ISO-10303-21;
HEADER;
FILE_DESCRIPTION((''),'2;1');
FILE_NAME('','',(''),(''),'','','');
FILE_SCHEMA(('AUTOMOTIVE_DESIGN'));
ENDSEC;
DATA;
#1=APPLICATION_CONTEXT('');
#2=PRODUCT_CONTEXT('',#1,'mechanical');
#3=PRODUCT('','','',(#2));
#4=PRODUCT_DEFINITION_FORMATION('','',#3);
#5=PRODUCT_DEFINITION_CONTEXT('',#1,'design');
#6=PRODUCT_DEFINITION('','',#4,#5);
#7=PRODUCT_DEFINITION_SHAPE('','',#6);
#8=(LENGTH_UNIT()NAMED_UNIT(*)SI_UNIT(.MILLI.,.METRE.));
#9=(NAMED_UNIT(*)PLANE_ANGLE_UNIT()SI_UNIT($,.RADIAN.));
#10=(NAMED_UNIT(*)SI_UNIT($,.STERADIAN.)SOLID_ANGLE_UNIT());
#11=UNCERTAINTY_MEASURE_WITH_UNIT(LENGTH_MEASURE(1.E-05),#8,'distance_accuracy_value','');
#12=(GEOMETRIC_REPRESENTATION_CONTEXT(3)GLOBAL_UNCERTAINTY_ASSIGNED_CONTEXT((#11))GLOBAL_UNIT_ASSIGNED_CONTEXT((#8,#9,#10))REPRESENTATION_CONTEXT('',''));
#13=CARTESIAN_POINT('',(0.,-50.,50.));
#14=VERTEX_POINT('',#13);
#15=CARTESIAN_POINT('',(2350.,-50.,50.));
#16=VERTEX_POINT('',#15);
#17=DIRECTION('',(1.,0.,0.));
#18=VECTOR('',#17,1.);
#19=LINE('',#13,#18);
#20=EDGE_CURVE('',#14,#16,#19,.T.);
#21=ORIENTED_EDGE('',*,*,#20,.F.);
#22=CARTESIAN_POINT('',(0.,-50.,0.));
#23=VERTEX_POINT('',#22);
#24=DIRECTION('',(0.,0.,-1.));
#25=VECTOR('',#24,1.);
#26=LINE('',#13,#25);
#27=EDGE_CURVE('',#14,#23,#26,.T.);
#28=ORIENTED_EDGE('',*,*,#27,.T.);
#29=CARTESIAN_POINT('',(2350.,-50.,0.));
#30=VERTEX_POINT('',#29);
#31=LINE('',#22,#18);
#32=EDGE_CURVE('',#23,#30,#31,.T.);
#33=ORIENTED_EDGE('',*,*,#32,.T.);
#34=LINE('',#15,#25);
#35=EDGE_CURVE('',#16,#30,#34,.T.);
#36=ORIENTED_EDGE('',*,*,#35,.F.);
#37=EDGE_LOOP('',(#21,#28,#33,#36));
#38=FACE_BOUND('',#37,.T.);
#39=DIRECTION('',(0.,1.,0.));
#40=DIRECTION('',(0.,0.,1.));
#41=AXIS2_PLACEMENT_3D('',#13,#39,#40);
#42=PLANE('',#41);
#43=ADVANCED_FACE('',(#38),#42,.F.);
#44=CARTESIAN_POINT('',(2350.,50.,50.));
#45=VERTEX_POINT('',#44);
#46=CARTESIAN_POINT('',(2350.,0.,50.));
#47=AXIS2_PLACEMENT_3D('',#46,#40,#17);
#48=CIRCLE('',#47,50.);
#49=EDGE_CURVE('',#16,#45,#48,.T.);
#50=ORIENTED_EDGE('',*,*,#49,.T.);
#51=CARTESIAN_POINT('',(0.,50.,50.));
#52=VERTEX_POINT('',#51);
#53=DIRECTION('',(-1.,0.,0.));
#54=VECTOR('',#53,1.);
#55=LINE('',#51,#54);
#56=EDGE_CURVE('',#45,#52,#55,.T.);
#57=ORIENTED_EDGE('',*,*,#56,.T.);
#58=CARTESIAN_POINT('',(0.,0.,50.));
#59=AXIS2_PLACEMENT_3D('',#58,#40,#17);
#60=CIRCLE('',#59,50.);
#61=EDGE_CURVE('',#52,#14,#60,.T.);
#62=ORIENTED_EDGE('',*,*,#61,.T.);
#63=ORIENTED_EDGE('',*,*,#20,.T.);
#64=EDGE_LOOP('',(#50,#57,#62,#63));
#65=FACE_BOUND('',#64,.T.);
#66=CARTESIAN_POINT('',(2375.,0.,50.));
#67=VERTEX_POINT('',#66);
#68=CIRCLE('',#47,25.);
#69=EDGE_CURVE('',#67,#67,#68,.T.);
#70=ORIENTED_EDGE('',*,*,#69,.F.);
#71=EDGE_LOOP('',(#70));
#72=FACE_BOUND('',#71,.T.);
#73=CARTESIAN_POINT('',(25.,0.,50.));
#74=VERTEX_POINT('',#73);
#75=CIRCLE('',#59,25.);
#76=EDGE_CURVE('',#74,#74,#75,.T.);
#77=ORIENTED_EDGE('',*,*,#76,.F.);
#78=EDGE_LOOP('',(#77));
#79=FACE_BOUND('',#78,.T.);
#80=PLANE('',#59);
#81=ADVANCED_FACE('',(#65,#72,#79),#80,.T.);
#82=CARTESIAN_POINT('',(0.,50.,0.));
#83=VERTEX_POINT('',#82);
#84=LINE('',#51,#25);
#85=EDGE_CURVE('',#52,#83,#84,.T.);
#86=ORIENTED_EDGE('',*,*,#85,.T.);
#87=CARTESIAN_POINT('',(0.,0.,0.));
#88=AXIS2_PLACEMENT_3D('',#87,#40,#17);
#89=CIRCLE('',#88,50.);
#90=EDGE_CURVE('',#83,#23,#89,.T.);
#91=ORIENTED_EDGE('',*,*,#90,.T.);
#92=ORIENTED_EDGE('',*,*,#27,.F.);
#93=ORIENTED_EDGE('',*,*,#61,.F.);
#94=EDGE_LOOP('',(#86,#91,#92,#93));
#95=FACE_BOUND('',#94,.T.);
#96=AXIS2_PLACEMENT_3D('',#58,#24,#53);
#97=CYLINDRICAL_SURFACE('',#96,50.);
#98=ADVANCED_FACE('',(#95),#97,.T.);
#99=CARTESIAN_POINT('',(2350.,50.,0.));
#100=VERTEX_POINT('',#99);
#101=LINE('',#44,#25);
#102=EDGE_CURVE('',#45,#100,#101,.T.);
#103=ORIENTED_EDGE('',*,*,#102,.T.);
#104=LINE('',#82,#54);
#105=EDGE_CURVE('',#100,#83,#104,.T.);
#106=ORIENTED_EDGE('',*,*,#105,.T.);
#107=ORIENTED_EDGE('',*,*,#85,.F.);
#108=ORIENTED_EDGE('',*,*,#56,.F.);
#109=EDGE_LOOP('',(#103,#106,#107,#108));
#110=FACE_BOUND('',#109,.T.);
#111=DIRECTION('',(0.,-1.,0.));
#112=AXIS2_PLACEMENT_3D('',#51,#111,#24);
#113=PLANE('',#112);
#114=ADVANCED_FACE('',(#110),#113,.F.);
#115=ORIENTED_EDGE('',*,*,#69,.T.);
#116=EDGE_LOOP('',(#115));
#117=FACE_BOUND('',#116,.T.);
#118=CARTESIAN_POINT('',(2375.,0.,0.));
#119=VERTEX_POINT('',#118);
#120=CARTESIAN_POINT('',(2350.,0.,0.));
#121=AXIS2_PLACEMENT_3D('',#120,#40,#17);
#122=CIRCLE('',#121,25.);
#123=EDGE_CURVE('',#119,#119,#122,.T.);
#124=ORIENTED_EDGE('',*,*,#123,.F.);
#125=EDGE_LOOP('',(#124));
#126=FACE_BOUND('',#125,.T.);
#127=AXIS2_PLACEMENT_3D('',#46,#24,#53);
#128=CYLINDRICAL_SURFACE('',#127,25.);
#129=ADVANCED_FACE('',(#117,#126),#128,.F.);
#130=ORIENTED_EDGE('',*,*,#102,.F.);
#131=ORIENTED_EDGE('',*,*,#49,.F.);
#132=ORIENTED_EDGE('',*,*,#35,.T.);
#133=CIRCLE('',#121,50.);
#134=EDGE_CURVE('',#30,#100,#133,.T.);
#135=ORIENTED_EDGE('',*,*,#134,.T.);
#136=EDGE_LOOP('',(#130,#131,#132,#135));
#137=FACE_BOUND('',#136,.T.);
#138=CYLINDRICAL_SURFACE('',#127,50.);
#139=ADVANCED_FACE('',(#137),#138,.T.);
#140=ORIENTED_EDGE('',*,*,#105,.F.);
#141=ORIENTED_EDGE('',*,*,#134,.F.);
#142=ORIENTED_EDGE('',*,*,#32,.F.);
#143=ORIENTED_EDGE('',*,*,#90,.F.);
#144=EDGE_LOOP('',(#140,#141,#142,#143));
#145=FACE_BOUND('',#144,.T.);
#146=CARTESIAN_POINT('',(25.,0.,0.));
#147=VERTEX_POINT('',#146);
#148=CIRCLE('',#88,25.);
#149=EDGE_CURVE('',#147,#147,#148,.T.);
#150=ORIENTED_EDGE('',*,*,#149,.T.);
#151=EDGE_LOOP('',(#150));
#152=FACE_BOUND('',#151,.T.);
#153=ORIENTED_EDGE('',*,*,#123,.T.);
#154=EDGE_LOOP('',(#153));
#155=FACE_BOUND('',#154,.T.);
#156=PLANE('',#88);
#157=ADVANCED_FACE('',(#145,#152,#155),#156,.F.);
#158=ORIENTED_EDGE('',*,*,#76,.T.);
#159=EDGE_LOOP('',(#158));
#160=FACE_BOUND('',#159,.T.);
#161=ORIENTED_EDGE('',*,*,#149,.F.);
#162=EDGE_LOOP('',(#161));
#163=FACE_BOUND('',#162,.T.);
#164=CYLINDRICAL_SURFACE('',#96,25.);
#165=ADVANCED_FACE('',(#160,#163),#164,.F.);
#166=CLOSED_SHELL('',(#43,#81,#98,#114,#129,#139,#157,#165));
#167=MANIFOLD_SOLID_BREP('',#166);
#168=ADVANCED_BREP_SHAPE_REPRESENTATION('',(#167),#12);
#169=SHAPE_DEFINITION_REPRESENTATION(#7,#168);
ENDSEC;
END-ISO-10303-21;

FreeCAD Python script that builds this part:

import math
import FreeCAD as App
import Part
import Sketcher

doc = App.newDocument("Part")
body = doc.addObject("PartDesign::Body", "Body")

# Sketch on XY plane
sketch1 = doc.addObject("Sketcher::SketchObject", "Sketch")
body.addObject(sketch1)
sketch1.AttachmentSupport = (doc.XY_Plane, [""])
sketch1.MapMode = "FlatFace"
sketch1.addGeometry(Part.LineSegment(App.Vector(2350, 50, 0), App.Vector(0, 50, 0)), False)
sketch1.addGeometry(Part.ArcOfCircle(Part.Circle(App.Vector(0, 0, 0), App.Vector(0, 0, 1), 50), math.radians(90), math.radians(270)), False)
sketch1.addGeometry(Part.LineSegment(App.Vector(0, -50, 0), App.Vector(2350, -50, 0)), False)
sketch1.addGeometry(Part.ArcOfCircle(Part.Circle(App.Vector(2350, 0, 0), App.Vector(0, 0, 1), 50), math.radians(-90), math.radians(90)), False)
sketch1.addGeometry(Part.Circle(App.Vector(2350, 0, 0), App.Vector(0, 0, 1), 25), False)
sketch1.addGeometry(Part.Circle(App.Vector(0, 0, 0), App.Vector(0, 0, 1), 25), False)
sketch1.addConstraint(Sketcher.Constraint("Tangent", 0, 2, 1, 1))
sketch1.addConstraint(Sketcher.Constraint("Tangent", 1, 2, 2, 1))
sketch1.addConstraint(Sketcher.Constraint("Tangent", 2, 2, 3, 1))
sketch1.addConstraint(Sketcher.Constraint("Tangent", 3, 2, 0, 1))
sketch1.addConstraint(Sketcher.Constraint("Horizontal", 0))
sketch1.addConstraint(Sketcher.Constraint("Horizontal", 2))
sketch1.addConstraint(Sketcher.Constraint("Coincident", 1, 3, -1, 1))
sketch1.addConstraint(Sketcher.Constraint("Coincident", 5, 3, -1, 1))
sketch1.addConstraint(Sketcher.Constraint("Coincident", 4, 3, 3, 3))
sketch1.addConstraint(Sketcher.Constraint("Equal", 4, 5))
sketch1.addConstraint(Sketcher.Constraint("Diameter", 4, 50.0))
sketch1.addConstraint(Sketcher.Constraint("Radius", 1, 50.0))
sketch1.addConstraint(Sketcher.Constraint("DistanceX", 0, 2, 0, 1, 2350.0))
pad1 = doc.addObject("PartDesign::Pad", "Pad")
body.addObject(pad1)
pad1.Profile = sketch1
pad1.Length = 50

doc.recompute()
